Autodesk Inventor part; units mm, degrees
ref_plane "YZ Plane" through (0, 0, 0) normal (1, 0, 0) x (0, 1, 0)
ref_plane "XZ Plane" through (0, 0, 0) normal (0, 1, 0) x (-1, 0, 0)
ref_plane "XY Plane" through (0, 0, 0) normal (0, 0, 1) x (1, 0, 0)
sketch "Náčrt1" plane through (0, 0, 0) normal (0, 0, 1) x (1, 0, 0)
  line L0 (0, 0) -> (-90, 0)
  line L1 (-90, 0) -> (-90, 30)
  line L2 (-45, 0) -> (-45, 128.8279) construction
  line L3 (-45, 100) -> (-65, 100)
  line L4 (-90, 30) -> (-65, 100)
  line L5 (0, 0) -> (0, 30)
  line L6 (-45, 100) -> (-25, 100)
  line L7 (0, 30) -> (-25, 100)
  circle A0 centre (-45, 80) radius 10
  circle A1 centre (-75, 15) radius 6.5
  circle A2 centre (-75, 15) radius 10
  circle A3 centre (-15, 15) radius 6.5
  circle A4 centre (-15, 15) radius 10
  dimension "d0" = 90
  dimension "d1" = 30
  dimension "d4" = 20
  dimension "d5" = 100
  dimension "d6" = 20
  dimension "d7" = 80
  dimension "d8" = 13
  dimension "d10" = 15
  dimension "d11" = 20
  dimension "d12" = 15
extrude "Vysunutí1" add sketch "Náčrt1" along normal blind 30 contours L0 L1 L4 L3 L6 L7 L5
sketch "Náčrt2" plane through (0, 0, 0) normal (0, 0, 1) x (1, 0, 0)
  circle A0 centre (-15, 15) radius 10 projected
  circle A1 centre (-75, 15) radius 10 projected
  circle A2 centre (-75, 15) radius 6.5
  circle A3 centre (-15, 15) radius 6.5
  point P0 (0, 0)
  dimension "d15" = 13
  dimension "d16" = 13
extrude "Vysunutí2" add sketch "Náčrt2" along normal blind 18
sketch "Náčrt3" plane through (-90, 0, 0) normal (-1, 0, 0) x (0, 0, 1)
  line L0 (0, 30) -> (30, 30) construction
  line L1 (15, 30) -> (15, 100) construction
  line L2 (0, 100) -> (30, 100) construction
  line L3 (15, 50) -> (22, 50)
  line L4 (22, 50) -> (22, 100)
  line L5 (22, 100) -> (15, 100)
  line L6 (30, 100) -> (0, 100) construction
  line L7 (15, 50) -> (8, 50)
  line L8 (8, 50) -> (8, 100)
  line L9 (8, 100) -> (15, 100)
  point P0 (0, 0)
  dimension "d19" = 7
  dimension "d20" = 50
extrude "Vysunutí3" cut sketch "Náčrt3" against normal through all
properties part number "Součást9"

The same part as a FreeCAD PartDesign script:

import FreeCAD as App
import Part
import Sketcher
from FreeCAD import Vector
Q = App.Units.Quantity

doc = App.newDocument("Part")
body = doc.addObject("PartDesign::Body", "Body")

sketch1 = body.newObject("Sketcher::SketchObject", "Sketch")
sketch1.AttachmentSupport = (doc.getObject("XY_Plane"), [""])
sketch1.MapMode = "FlatFace"
sketch1.addGeometry([
    Part.LineSegment(Vector(-90, 0, 0), Vector(0, 0, 0)),
    Part.LineSegment(Vector(0, 0, 0), Vector(0, 30, 0)),
    Part.LineSegment(Vector(0, 30, 0), Vector(-25, 100, 0)),
    Part.LineSegment(Vector(-25, 100, 0), Vector(-65, 100, 0)),
    Part.LineSegment(Vector(-65, 100, 0), Vector(-90, 30, 0)),
    Part.LineSegment(Vector(-90, 30, 0), Vector(-90, 0, 0)),
    Part.Circle(Vector(-75, 15, 0), Vector(0, 0, 1), 10),
    Part.Circle(Vector(-15, 15, 0), Vector(0, 0, 1), 10),
    Part.Circle(Vector(-45, 80, 0), Vector(0, 0, 1), 10),
], False)
sketch1.addConstraint([
    Sketcher.Constraint("Coincident", 0, 2, 1, 1),
    Sketcher.Constraint("Coincident", 1, 2, 2, 1),
    Sketcher.Constraint("Coincident", 2, 2, 3, 1),
    Sketcher.Constraint("Coincident", 3, 2, 4, 1),
    Sketcher.Constraint("Coincident", 4, 2, 5, 1),
    Sketcher.Constraint("Coincident", 5, 2, 0, 1),
    Sketcher.Constraint("Horizontal", 0),
    Sketcher.Constraint("Vertical", 1),
    Sketcher.Constraint("Horizontal", 3),
    Sketcher.Constraint("Vertical", 5),
    Sketcher.Constraint("Coincident", 0, 2, -1, 1),
    Sketcher.Constraint("Equal", 6, 7),
    Sketcher.Constraint("Equal", 7, 8),
    Sketcher.Constraint("Horizontal", 6, 3, 7, 3),
    Sketcher.Constraint("Horizontal", 1, 2, 4, 2),
    Sketcher.Constraint("Equal", 2, 4),
    Sketcher.Constraint("Diameter", 6, Q("20 mm")),
    Sketcher.Constraint("DistanceX", 0, 1, 0, 2, Q("90 mm")),
    Sketcher.Constraint("DistanceY", 1, 1, 1, 2, Q("30 mm")),
    Sketcher.Constraint("DistanceY", -1, 1, 6, 3, Q("15 mm")),
    Sketcher.Constraint("DistanceX", 7, 3, -1, 1, Q("15 mm")),
    Sketcher.Constraint("DistanceY", -1, 1, 8, 3, Q("80 mm")),
    Sketcher.Constraint("DistanceY", -1, 1, 2, 2, Q("100 mm")),
    Sketcher.Constraint("DistanceX", 6, 3, 8, 3, Q("30 mm")),
    Sketcher.Constraint("DistanceX", 8, 3, 7, 3, Q("30 mm")),
    Sketcher.Constraint("DistanceX", 8, 3, 2, 2, Q("20 mm")),
])
pad1 = body.newObject("PartDesign::Pad", "Pad")
pad1.Profile = sketch1
pad1.Length = 30

sketch2 = body.newObject("Sketcher::SketchObject", "Sketch001")
sketch2.AttachmentSupport = (doc.getObject("XY_Plane"), [""])
sketch2.MapMode = "FlatFace"
sketch2.addGeometry([
    Part.Circle(Vector(-15, 15, 0), Vector(0, 0, 1), 10),
    Part.Circle(Vector(-15, 15, 0), Vector(0, 0, 1), 6),
    Part.Circle(Vector(-75, 15, 0), Vector(0, 0, 1), 10),
    Part.Circle(Vector(-75, 15, 0), Vector(0, 0, 1), 6),
], False)
sketch2.addConstraint([
    Sketcher.Constraint("Coincident", 1, 3, 0, 3),
    Sketcher.Constraint("Coincident", 3, 3, 2, 3),
    Sketcher.Constraint("Equal", 0, 2),
    Sketcher.Constraint("Equal", 1, 3),
    Sketcher.Constraint("Horizontal", 1, 3, 2, 3),
    Sketcher.Constraint("Diameter", 1, Q("13 mm")),
    Sketcher.Constraint("Diameter", 0, Q("20 mm")),
    Sketcher.Constraint("DistanceX", 0, 3, -1, 1, Q("15 mm")),
    Sketcher.Constraint("DistanceY", -1, 1, 0, 3, Q("15 mm")),
    Sketcher.Constraint("DistanceX", 2, 3, -1, 1, Q("75 mm")),
])
pad2 = body.newObject("PartDesign::Pad", "Pad001")
pad2.Profile = sketch2
pad2.Length = 18

sketch3 = body.newObject("Sketcher::SketchObject", "Sketch002")
sketch3.AttachmentSupport = (doc.getObject("YZ_Plane"), [""])
sketch3.MapMode = "FlatFace"
sketch3.AttachmentOffset = App.Placement(Vector(0, 0, -90), App.Rotation())
sketch3.addGeometry([
    Part.LineSegment(Vector(50, 8, 0), Vector(50, 22, 0)),
    Part.LineSegment(Vector(50, 22, 0), Vector(100, 22, 0)),
    Part.LineSegment(Vector(100, 22, 0), Vector(100, 8, 0)),
    Part.LineSegment(Vector(100, 8, 0), Vector(50, 8, 0)),
], False)
sketch3.addConstraint([
    Sketcher.Constraint("Coincident", 0, 2, 1, 1),
    Sketcher.Constraint("Coincident", 1, 2, 2, 1),
    Sketcher.Constraint("Coincident", 2, 2, 3, 1),
    Sketcher.Constraint("Coincident", 3, 2, 0, 1),
    Sketcher.Constraint("Vertical", 0),
    Sketcher.Constraint("Horizontal", 1),
    Sketcher.Constraint("Vertical", 2),
    Sketcher.Constraint("Horizontal", 3),
    Sketcher.Constraint("DistanceX", 1, 1, 1, 2, Q("50 mm")),
    Sketcher.Constraint("DistanceX", -1, 1, 0, 2, Q("50 mm")),
    Sketcher.Constraint("DistanceY", 0, 1, 0, 2, Q("14 mm")),
    Sketcher.Constraint("DistanceY", -1, 1, 0, 2, Q("22 mm")),
])
pocket1 = body.newObject("PartDesign::Pocket", "Pocket")
pocket1.Profile = sketch3
pocket1.Type = "ThroughAll"
pocket1.Reversed = True

doc.recompute()
